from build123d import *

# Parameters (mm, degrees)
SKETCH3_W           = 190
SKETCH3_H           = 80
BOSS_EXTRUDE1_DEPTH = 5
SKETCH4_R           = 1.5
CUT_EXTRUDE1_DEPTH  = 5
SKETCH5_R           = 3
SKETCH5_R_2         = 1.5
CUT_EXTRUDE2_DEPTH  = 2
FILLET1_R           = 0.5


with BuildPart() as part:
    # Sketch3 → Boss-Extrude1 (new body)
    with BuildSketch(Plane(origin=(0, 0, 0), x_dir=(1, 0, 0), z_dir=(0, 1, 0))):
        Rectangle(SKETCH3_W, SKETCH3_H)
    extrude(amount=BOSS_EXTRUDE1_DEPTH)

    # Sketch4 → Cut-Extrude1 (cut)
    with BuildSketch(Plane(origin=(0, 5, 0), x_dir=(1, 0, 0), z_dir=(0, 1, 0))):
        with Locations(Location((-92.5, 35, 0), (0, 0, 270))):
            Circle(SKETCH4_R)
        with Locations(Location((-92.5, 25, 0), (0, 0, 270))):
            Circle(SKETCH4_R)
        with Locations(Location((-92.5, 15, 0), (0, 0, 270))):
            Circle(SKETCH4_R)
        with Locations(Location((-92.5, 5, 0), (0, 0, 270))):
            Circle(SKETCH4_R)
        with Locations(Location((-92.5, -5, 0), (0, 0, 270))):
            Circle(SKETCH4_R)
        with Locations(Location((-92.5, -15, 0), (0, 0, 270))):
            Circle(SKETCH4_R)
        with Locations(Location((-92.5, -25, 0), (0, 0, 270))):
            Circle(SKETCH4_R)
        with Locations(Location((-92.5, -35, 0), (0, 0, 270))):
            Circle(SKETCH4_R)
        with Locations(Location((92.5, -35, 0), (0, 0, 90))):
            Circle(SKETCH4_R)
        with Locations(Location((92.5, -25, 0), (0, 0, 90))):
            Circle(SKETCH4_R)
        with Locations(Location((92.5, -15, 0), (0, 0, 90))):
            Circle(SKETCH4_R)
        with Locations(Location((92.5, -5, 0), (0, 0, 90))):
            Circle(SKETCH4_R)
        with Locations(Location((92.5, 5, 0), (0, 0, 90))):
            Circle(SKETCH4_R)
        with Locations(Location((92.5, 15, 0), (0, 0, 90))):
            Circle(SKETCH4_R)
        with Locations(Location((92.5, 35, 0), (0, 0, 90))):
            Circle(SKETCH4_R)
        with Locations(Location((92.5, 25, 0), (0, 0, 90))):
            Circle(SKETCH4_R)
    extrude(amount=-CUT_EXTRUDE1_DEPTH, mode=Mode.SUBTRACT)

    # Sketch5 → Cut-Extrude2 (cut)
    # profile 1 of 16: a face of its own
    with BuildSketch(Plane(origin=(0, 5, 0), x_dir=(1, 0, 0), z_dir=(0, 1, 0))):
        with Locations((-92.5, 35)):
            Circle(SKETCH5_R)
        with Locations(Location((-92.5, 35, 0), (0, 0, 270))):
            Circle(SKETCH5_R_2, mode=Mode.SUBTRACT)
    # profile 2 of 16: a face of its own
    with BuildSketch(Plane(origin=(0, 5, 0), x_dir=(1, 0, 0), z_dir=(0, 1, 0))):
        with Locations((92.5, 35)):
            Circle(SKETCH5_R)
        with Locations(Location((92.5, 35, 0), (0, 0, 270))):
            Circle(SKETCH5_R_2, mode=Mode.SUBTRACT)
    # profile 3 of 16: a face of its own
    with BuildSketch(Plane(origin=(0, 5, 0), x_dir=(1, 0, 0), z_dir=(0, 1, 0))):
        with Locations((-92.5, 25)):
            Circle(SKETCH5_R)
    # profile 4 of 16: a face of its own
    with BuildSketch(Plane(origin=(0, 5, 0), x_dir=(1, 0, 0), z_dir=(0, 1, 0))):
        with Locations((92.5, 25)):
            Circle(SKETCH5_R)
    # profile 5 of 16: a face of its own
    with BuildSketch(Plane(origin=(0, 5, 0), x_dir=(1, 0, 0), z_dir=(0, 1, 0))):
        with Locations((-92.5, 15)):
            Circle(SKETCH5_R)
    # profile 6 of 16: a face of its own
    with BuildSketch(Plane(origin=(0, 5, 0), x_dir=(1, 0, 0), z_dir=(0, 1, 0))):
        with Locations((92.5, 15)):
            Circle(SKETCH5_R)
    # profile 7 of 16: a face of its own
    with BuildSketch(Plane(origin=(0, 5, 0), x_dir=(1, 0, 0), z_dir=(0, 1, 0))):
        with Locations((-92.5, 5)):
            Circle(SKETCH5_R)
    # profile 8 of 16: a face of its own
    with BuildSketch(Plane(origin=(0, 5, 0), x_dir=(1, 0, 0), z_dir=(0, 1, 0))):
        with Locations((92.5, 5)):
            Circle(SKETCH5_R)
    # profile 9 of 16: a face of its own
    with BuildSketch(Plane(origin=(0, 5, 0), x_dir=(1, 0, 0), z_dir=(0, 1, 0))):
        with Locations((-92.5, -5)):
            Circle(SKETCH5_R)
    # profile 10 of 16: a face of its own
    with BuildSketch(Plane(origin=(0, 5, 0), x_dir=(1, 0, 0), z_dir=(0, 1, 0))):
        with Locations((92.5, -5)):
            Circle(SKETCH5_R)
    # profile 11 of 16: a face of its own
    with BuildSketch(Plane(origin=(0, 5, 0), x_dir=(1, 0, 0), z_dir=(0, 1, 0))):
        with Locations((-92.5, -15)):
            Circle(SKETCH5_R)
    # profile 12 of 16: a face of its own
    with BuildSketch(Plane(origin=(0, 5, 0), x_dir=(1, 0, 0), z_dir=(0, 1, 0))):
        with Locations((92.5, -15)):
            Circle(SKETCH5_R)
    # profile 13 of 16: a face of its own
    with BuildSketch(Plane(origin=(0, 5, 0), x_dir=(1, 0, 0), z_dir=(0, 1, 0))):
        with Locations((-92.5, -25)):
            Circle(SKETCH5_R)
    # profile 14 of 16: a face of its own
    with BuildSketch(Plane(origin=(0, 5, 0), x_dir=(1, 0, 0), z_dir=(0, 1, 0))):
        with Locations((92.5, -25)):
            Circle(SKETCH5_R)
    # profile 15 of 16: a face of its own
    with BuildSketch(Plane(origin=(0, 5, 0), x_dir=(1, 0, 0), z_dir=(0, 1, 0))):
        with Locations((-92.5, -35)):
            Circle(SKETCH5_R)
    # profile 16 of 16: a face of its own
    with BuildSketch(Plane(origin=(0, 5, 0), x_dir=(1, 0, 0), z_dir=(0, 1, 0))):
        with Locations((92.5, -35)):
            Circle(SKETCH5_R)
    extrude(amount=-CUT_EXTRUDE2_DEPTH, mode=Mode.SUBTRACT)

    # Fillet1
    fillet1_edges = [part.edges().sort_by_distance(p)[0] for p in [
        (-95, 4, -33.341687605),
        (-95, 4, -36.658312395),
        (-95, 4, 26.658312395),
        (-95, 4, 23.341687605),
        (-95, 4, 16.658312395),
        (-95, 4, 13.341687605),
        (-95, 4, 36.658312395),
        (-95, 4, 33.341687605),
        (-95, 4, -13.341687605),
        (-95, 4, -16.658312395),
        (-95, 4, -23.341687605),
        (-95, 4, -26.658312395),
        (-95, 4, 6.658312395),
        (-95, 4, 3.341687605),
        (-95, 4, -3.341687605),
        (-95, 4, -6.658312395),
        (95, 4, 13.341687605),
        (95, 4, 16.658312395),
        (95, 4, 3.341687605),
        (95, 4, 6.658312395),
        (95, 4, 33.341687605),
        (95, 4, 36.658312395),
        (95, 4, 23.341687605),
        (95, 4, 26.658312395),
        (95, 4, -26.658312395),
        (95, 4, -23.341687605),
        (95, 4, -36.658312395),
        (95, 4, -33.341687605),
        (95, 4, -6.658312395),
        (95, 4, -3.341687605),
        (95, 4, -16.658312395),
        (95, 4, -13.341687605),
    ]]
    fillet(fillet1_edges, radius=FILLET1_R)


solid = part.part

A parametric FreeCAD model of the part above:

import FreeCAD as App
import Part
import Sketcher
from FreeCAD import Vector
Q = App.Units.Quantity


def edges_at(feature, points):
    """Names of the edges that pass closest to the given points."""
    edges = feature.Shape.Edges
    near = lambda p: min(range(len(edges)), key=lambda i: edges[i].distToShape(Part.Vertex(*p))[0])
    return sorted({f"Edge{near(p) + 1}" for p in points})


def add_polygon(sketch, points):
    """Adds a closed chain of lines whose ends are joined by coincident constraints."""
    first, n = sketch.GeometryCount, len(points)
    for a, b in zip(points, points[1:] + points[:1]):
        sketch.addGeometry(Part.LineSegment(App.Vector(*a, 0), App.Vector(*b, 0)), False)
    for i in range(n):
        sketch.addConstraint(Sketcher.Constraint("Coincident", first + i, 2, first + (i + 1) % n, 1))

doc = App.newDocument("Part")
body = doc.addObject("PartDesign::Body", "Body")

# Sketch on XZ plane
sketch1 = body.newObject("Sketcher::SketchObject", "Sketch")
sketch1.AttachmentSupport = (doc.getObject("XZ_Plane"), [""])
sketch1.MapMode = "FlatFace"
add_polygon(sketch1, [(-95, -40), (-95, 40), (95, 40), (95, -40)])  # lines 0-3
sketch1.addConstraint(Sketcher.Constraint("Vertical", 0))
sketch1.addConstraint(Sketcher.Constraint("Horizontal", 1))
sketch1.addConstraint(Sketcher.Constraint("Vertical", 2))
sketch1.addConstraint(Sketcher.Constraint("Horizontal", 3))
sketch1.addConstraint(Sketcher.Constraint("Symmetric", 0, 2, 2, 2, -1, 1))
sketch1.addConstraint(Sketcher.Constraint("DistanceX", 1, 1, 1, 2, Q("190 mm")))
sketch1.addConstraint(Sketcher.Constraint("DistanceY", 0, 1, 0, 2, Q("80 mm")))
pad1 = body.newObject("PartDesign::Pad", "Pad")
pad1.Profile = sketch1
pad1.Length = 5
pad1.Reversed = True

# Sketch on XZ plane
sketch2 = body.newObject("Sketcher::SketchObject", "Sketch001")
sketch2.AttachmentSupport = (doc.getObject("XZ_Plane"), [""])
sketch2.MapMode = "FlatFace"
sketch2.AttachmentOffset = App.Placement(Vector(0, 0, -5), App.Rotation())
sketch2.addGeometry(Part.Circle(Vector(-92.5, -35, 0), Vector(0, 0, 1), 1.5), False)
sketch2.addGeometry(Part.Circle(Vector(-92.5, -25, 0), Vector(0, 0, 1), 1.5), False)
sketch2.addGeometry(Part.Circle(Vector(-92.5, -15, 0), Vector(0, 0, 1), 1.5), False)
sketch2.addGeometry(Part.Circle(Vector(-92.5, -5, 0), Vector(0, 0, 1), 1.5), False)
sketch2.addGeometry(Part.Circle(Vector(-92.5, 5, 0), Vector(0, 0, 1), 1.5), False)
sketch2.addGeometry(Part.Circle(Vector(-92.5, 15, 0), Vector(0, 0, 1), 1.5), False)
sketch2.addGeometry(Part.Circle(Vector(-92.5, 25, 0), Vector(0, 0, 1), 1.5), False)
sketch2.addGeometry(Part.Circle(Vector(-92.5, 35, 0), Vector(0, 0, 1), 1.5), False)
sketch2.addGeometry(Part.Circle(Vector(92.5, 35, 0), Vector(0, 0, 1), 1.5), False)
sketch2.addGeometry(Part.Circle(Vector(92.5, 25, 0), Vector(0, 0, 1), 1.5), False)
sketch2.addGeometry(Part.Circle(Vector(92.5, 15, 0), Vector(0, 0, 1), 1.5), False)
sketch2.addGeometry(Part.Circle(Vector(92.5, 5, 0), Vector(0, 0, 1), 1.5), False)
sketch2.addGeometry(Part.Circle(Vector(92.5, -5, 0), Vector(0, 0, 1), 1.5), False)
sketch2.addGeometry(Part.Circle(Vector(92.5, -15, 0), Vector(0, 0, 1), 1.5), False)
sketch2.addGeometry(Part.Circle(Vector(92.5, -35, 0), Vector(0, 0, 1), 1.5), False)
sketch2.addGeometry(Part.Circle(Vector(92.5, -25, 0), Vector(0, 0, 1), 1.5), False)
sketch2.addConstraint(Sketcher.Constraint("Equal", 0, 1))
sketch2.addConstraint(Sketcher.Constraint("Equal", 1, 2))
sketch2.addConstraint(Sketcher.Constraint("Equal", 2, 3))
sketch2.addConstraint(Sketcher.Constraint("Equal", 3, 4))
sketch2.addConstraint(Sketcher.Constraint("Equal", 4, 5))
sketch2.addConstraint(Sketcher.Constraint("Equal", 5, 6))
sketch2.addConstraint(Sketcher.Constraint("Equal", 6, 7))
sketch2.addConstraint(Sketcher.Constraint("Equal", 7, 8))
sketch2.addConstraint(Sketcher.Constraint("Equal", 8, 9))
sketch2.addConstraint(Sketcher.Constraint("Equal", 9, 10))
sketch2.addConstraint(Sketcher.Constraint("Equal", 10, 11))
sketch2.addConstraint(Sketcher.Constraint("Equal", 11, 12))
sketch2.addConstraint(Sketcher.Constraint("Equal", 12, 13))
sketch2.addConstraint(Sketcher.Constraint("Equal", 13, 14))
sketch2.addConstraint(Sketcher.Constraint("Equal", 14, 15))
sketch2.addConstraint(Sketcher.Constraint("Symmetric", 0, 3, 8, 3, -1, 1))
sketch2.addConstraint(Sketcher.Constraint("Symmetric", 1, 3, 9, 3, -1, 1))
sketch2.addConstraint(Sketcher.Constraint("Symmetric", 2, 3, 10, 3, -1, 1))
sketch2.addConstraint(Sketcher.Constraint("Symmetric", 3, 3, 11, 3, -1, 1))
sketch2.addConstraint(Sketcher.Constraint("Symmetric", 4, 3, 12, 3, -1, 1))
sketch2.addConstraint(Sketcher.Constraint("Symmetric", 5, 3, 13, 3, -1, 1))
sketch2.addConstraint(Sketcher.Constraint("Symmetric", 7, 3, 14, 3, -1, 1))
sketch2.addConstraint(Sketcher.Constraint("Symmetric", 6, 3, 15, 3, -1, 1))
sketch2.addConstraint(Sketcher.Constraint("Symmetric", 7, 3, 8, 3, -2))
sketch2.addConstraint(Sketcher.Constraint("Symmetric", 6, 3, 9, 3, -2))
sketch2.addConstraint(Sketcher.Constraint("Symmetric", 5, 3, 10, 3, -2))
sketch2.addConstraint(Sketcher.Constraint("Symmetric", 4, 3, 11, 3, -2))
sketch2.addConstraint(Sketcher.Constraint("Vertical", 0, 3, 1, 3))
sketch2.addConstraint(Sketcher.Constraint("Vertical", 1, 3, 2, 3))
sketch2.addConstraint(Sketcher.Constraint("Vertical", 2, 3, 3, 3))
sketch2.addConstraint(Sketcher.Constraint("Diameter", 0, Q("3 mm")))
sketch2.addConstraint(Sketcher.Constraint("DistanceY", 0, 3, -1, 1, Q("35 mm")))
sketch2.addConstraint(Sketcher.Constraint("DistanceY", 1, 3, -1, 1, Q("25 mm")))
sketch2.addConstraint(Sketcher.Constraint("DistanceY", 2, 3, -1, 1, Q("15 mm")))
sketch2.addConstraint(Sketcher.Constraint("DistanceY", 3, 3, -1, 1, Q("5 mm")))
sketch2.addConstraint(Sketcher.Constraint("DistanceX", 7, 3, 8, 3, Q("185 mm")))
pocket1 = body.newObject("PartDesign::Pocket", "Pocket")
pocket1.Profile = sketch2
pocket1.Length = 5
pocket1.Reversed = True

# Sketch on XZ plane
sketch3 = body.newObject("Sketcher::SketchObject", "Sketch002")
sketch3.AttachmentSupport = (doc.getObject("XZ_Plane"), [""])
sketch3.MapMode = "FlatFace"
sketch3.AttachmentOffset = App.Placement(Vector(0, 0, -5), App.Rotation())
sketch3.addGeometry(Part.Circle(Vector(-92.5, -35, 0), Vector(0, 0, 1), 3), False)
sketch3.addGeometry(Part.Circle(Vector(-92.5, -35, 0), Vector(0, 0, 1), 1.5), False)
sketch3.addGeometry(Part.Circle(Vector(92.5, -35, 0), Vector(0, 0, 1), 3), False)
sketch3.addGeometry(Part.Circle(Vector(92.5, -35, 0), Vector(0, 0, 1), 1.5), False)
sketch3.addGeometry(Part.Circle(Vector(-92.5, -25, 0), Vector(0, 0, 1), 3), False)
sketch3.addGeometry(Part.Circle(Vector(92.5, -25, 0), Vector(0, 0, 1), 3), False)
sketch3.addGeometry(Part.Circle(Vector(-92.5, -15, 0), Vector(0, 0, 1), 3), False)
sketch3.addGeometry(Part.Circle(Vector(92.5, -15, 0), Vector(0, 0, 1), 3), False)
sketch3.addGeometry(Part.Circle(Vector(-92.5, -5, 0), Vector(0, 0, 1), 3), False)
sketch3.addGeometry(Part.Circle(Vector(92.5, -5, 0), Vector(0, 0, 1), 3), False)
sketch3.addGeometry(Part.Circle(Vector(-92.5, 5, 0), Vector(0, 0, 1), 3), False)
sketch3.addGeometry(Part.Circle(Vector(92.5, 5, 0), Vector(0, 0, 1), 3), False)
sketch3.addGeometry(Part.Circle(Vector(-92.5, 15, 0), Vector(0, 0, 1), 3), False)
sketch3.addGeometry(Part.Circle(Vector(92.5, 15, 0), Vector(0, 0, 1), 3), False)
sketch3.addGeometry(Part.Circle(Vector(-92.5, 25, 0), Vector(0, 0, 1), 3), False)
sketch3.addGeometry(Part.Circle(Vector(92.5, 25, 0), Vector(0, 0, 1), 3), False)
sketch3.addGeometry(Part.Circle(Vector(-92.5, 35, 0), Vector(0, 0, 1), 3), False)
sketch3.addGeometry(Part.Circle(Vector(92.5, 35, 0), Vector(0, 0, 1), 3), False)
sketch3.addConstraint(Sketcher.Constraint("Coincident", 1, 3, 0, 3))
sketch3.addConstraint(Sketcher.Constraint("Coincident", 3, 3, 2, 3))
sketch3.addConstraint(Sketcher.Constraint("Equal", 0, 2))
sketch3.addConstraint(Sketcher.Constraint("Equal", 1, 3))
sketch3.addConstraint(Sketcher.Constraint("Equal", 2, 4))
sketch3.addConstraint(Sketcher.Constraint("Equal", 4, 5))
sketch3.addConstraint(Sketcher.Constraint("Equal", 5, 6))
sketch3.addConstraint(Sketcher.Constraint("Equal", 6, 7))
sketch3.addConstraint(Sketcher.Constraint("Equal", 7, 8))
sketch3.addConstraint(Sketcher.Constraint("Equal", 8, 9))
sketch3.addConstraint(Sketcher.Constraint("Equal", 9, 10))
sketch3.addConstraint(Sketcher.Constraint("Equal", 10, 11))
sketch3.addConstraint(Sketcher.Constraint("Equal", 11, 12))
sketch3.addConstraint(Sketcher.Constraint("Equal", 12, 13))
sketch3.addConstraint(Sketcher.Constraint("Equal", 13, 14))
sketch3.addConstraint(Sketcher.Constraint("Equal", 14, 15))
sketch3.addConstraint(Sketcher.Constraint("Equal", 15, 16))
sketch3.addConstraint(Sketcher.Constraint("Equal", 16, 17))
sketch3.addConstraint(Sketcher.Constraint("Symmetric", 9, 3, 10, 3, -1, 1))
sketch3.addConstraint(Sketcher.Constraint("Symmetric", 8, 3, 11, 3, -1, 1))
sketch3.addConstraint(Sketcher.Constraint("Symmetric", 7, 3, 12, 3, -1, 1))
sketch3.addConstraint(Sketcher.Constraint("Symmetric", 6, 3, 13, 3, -1, 1))
sketch3.addConstraint(Sketcher.Constraint("Symmetric", 5, 3, 14, 3, -1, 1))
sketch3.addConstraint(Sketcher.Constraint("Symmetric", 4, 3, 15, 3, -1, 1))
sketch3.addConstraint(Sketcher.Constraint("Symmetric", 2, 3, 16, 3, -1, 1))
sketch3.addConstraint(Sketcher.Constraint("Symmetric", 0, 3, 17, 3, -1, 1))
sketch3.addConstraint(Sketcher.Constraint("Symmetric", 0, 3, 2, 3, -2))
sketch3.addConstraint(Sketcher.Constraint("Symmetric", 4, 3, 5, 3, -2))
sketch3.addConstraint(Sketcher.Constraint("Symmetric", 6, 3, 7, 3, -2))
sketch3.addConstraint(Sketcher.Constraint("Symmetric", 8, 3, 9, 3, -2))
sketch3.addConstraint(Sketcher.Constraint("Vertical", 1, 3, 4, 3))
sketch3.addConstraint(Sketcher.Constraint("Vertical", 4, 3, 6, 3))
sketch3.addConstraint(Sketcher.Constraint("Vertical", 6, 3, 8, 3))
sketch3.addConstraint(Sketcher.Constraint("Diameter", 0, Q("6 mm")))
sketch3.addConstraint(Sketcher.Constraint("Diameter", 1, Q("3 mm")))
sketch3.addConstraint(Sketcher.Constraint("DistanceY", 0, 3, -1, 1, Q("35 mm")))
sketch3.addConstraint(Sketcher.Constraint("DistanceY", 4, 3, -1, 1, Q("25 mm")))
sketch3.addConstraint(Sketcher.Constraint("DistanceY", 6, 3, -1, 1, Q("15 mm")))
sketch3.addConstraint(Sketcher.Constraint("DistanceY", 8, 3, -1, 1, Q("5 mm")))
sketch3.addConstraint(Sketcher.Constraint("DistanceX", 0, 3, 2, 3, Q("185 mm")))
pocket2 = body.newObject("PartDesign::Pocket", "Pocket001")
pocket2.Profile = sketch3
pocket2.Length = 2
pocket2.Reversed = True
doc.recompute()

fillet = body.newObject("PartDesign::Fillet", "Fillet")
fillet.Base = (pocket2, edges_at(pocket2, [
    (-95, 4, -33.342),
    (-95, 4, -36.658),
    (-95, 4, 26.658),
    (-95, 4, 23.342),
    (-95, 4, 16.658),
    (-95, 4, 13.342),
    (-95, 4, 36.658),
    (-95, 4, 33.342),
    (-95, 4, -13.342),
    (-95, 4, -16.658),
    (-95, 4, -23.342),
    (-95, 4, -26.658),
    (-95, 4, 6.658),
    (-95, 4, 3.342),
    (-95, 4, -3.342),
    (-95, 4, -6.658),
    (95, 4, 13.342),
    (95, 4, 16.658),
    (95, 4, 3.342),
    (95, 4, 6.658),
    (95, 4, 33.342),
    (95, 4, 36.658),
    (95, 4, 23.342),
    (95, 4, 26.658),
    (95, 4, -26.658),
    (95, 4, -23.342),
    (95, 4, -36.658),
    (95, 4, -33.342),
    (95, 4, -6.658),
    (95, 4, -3.342),
    (95, 4, -16.658),
    (95, 4, -13.342),
]))
fillet.Radius = 0.5

doc.recompute()
